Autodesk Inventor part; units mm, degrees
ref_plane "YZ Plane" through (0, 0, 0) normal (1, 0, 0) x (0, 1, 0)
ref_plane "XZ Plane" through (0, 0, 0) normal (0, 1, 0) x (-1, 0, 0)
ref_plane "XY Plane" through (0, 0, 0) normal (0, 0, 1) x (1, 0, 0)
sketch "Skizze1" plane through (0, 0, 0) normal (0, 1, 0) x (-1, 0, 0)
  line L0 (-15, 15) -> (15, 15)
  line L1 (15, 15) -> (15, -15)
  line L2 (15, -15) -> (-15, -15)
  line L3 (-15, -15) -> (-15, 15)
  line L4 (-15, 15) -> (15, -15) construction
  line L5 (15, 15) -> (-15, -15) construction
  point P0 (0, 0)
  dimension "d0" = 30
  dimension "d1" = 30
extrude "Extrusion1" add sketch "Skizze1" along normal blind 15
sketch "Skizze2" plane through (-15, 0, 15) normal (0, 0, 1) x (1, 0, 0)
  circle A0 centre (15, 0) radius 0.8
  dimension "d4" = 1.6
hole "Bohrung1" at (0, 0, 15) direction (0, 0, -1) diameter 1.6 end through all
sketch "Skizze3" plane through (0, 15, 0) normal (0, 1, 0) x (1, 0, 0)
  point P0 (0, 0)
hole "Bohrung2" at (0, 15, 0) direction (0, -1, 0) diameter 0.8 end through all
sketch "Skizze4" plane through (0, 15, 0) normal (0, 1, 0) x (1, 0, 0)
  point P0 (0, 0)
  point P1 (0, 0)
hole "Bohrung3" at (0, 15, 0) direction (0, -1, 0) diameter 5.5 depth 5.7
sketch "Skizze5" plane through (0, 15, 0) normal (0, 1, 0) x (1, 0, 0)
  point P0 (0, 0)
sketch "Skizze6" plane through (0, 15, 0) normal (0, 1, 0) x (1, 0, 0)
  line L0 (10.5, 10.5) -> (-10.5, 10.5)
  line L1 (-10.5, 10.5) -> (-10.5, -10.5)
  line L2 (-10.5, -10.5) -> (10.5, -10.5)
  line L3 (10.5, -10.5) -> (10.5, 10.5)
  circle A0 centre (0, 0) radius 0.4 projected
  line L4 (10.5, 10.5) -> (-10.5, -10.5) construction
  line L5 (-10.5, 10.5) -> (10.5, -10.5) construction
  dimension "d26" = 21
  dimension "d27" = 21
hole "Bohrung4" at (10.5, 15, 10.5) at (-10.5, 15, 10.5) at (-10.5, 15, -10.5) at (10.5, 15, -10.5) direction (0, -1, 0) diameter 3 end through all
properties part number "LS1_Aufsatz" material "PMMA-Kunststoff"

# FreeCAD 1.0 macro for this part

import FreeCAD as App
import Part
import Sketcher

V = App.Vector
Q = App.Units.Quantity


def add_polygon(sketch, points):
    """Adds a closed chain of lines whose ends are joined by coincident constraints."""
    first, n = sketch.GeometryCount, len(points)
    for a, b in zip(points, points[1:] + points[:1]):
        sketch.addGeometry(Part.LineSegment(App.Vector(*a, 0), App.Vector(*b, 0)), False)
    for i in range(n):
        sketch.addConstraint(Sketcher.Constraint("Coincident", first + i, 2, first + (i + 1) % n, 1))

doc = App.newDocument("Part")
body = doc.addObject("PartDesign::Body", "Body")

sketch1 = body.newObject("Sketcher::SketchObject", "Sketch")
sketch1.AttachmentSupport = (doc.getObject("XZ_Plane"), [""])
sketch1.MapMode = "FlatFace"
add_polygon(sketch1, [(-15, 15), (15, 15), (15, -15), (-15, -15)])
sketch1.addConstraint([
    Sketcher.Constraint("Horizontal", 0),
    Sketcher.Constraint("Vertical", 1),
    Sketcher.Constraint("Horizontal", 2),
    Sketcher.Constraint("Vertical", 3),
    Sketcher.Constraint("Symmetric", 0, 2, 2, 2, -1, 1),
    Sketcher.Constraint("Equal", 2, 1),
    Sketcher.Constraint("DistanceX", 0, 1, 0, 2, Q("30 mm")),
])
pad1 = body.newObject("PartDesign::Pad", "Pad")
pad1.Profile = sketch1
pad1.Length = 15
pad1.Reversed = True

sketch2 = body.newObject("Sketcher::SketchObject", "Sketch001")
sketch2.AttachmentSupport = (doc.getObject("XY_Plane"), [""])
sketch2.MapMode = "FlatFace"
sketch2.AttachmentOffset = App.Placement(V(0, 0, 15), App.Rotation())
sketch2.addGeometry(Part.Circle(V(0, 0, 0), V(0, 0, 1), 0.8), False)
sketch2.addConstraint([
    Sketcher.Constraint("Coincident", 0, 3, -1, 1),
    Sketcher.Constraint("Diameter", 0, Q("1.6 mm")),
])
doc.recompute()
hole = body.newObject("PartDesign::Hole", "Hole")
hole.Profile = sketch2
hole.ThreadType = "None"
hole.Diameter = 1.6
hole.DepthType = "ThroughAll"

sketch3 = body.newObject("Sketcher::SketchObject", "Sketch002")
sketch3.AttachmentSupport = (doc.getObject("XZ_Plane"), [""])
sketch3.MapMode = "FlatFace"
sketch3.AttachmentOffset = App.Placement(V(0, 0, -15), App.Rotation())
sketch3.addGeometry(Part.Circle(V(0, 0, 0), V(0, 0, 1), 0.4), False)
sketch3.addConstraint([
    Sketcher.Constraint("Coincident", 0, 3, -1, 1),
    Sketcher.Constraint("Diameter", 0, Q("0.8 mm")),
])
doc.recompute()
hole2 = body.newObject("PartDesign::Hole", "Hole001")
hole2.Profile = sketch3
hole2.ThreadType = "None"
hole2.Diameter = 0.8
hole2.DepthType = "ThroughAll"
hole2.Reversed = True

sketch4 = body.newObject("Sketcher::SketchObject", "Sketch003")
sketch4.AttachmentSupport = (doc.getObject("XZ_Plane"), [""])
sketch4.MapMode = "FlatFace"
sketch4.AttachmentOffset = App.Placement(V(0, 0, -15), App.Rotation())
sketch4.addGeometry(Part.Circle(V(0, 0, 0), V(0, 0, 1), 2.8), False)
sketch4.addConstraint([
    Sketcher.Constraint("Coincident", 0, 3, -1, 1),
    Sketcher.Constraint("Diameter", 0, Q("5.5 mm")),
])
doc.recompute()
hole3 = body.newObject("PartDesign::Hole", "Hole002")
hole3.Profile = sketch4
hole3.ThreadType = "None"
hole3.Diameter = 5.5
hole3.DepthType = "Dimension"
hole3.Depth = 5.7
hole3.DrillPoint = "Flat"
hole3.Reversed = True

sketch5 = body.newObject("Sketcher::SketchObject", "Sketch004")
sketch5.AttachmentSupport = (doc.getObject("XZ_Plane"), [""])
sketch5.MapMode = "FlatFace"
sketch5.AttachmentOffset = App.Placement(V(0, 0, -15), App.Rotation())
sketch5.addGeometry([
    Part.Circle(V(10.5, 10.5, 0), V(0, 0, 1), 1.5),
    Part.Circle(V(-10.5, 10.5, 0), V(0, 0, 1), 1.5),
    Part.Circle(V(-10.5, -10.5, 0), V(0, 0, 1), 1.5),
    Part.Circle(V(10.5, -10.5, 0), V(0, 0, 1), 1.5),
], False)
sketch5.addConstraint([
    Sketcher.Constraint("Equal", 0, 1),
    Sketcher.Constraint("Equal", 1, 2),
    Sketcher.Constraint("Equal", 2, 3),
    Sketcher.Constraint("Symmetric", 0, 3, 2, 3, -1, 1),
    Sketcher.Constraint("Symmetric", 1, 3, 3, 3, -1, 1),
    Sketcher.Constraint("Symmetric", 0, 3, 1, 3, -2),
    Sketcher.Constraint("Diameter", 0, Q("3 mm")),
    Sketcher.Constraint("DistanceX", 1, 3, 0, 3, Q("21 mm")),
    Sketcher.Constraint("DistanceY", 2, 3, 1, 3, Q("21 mm")),
])
doc.recompute()
hole4 = body.newObject("PartDesign::Hole", "Hole003")
hole4.Profile = sketch5
hole4.ThreadType = "None"
hole4.Diameter = 3
hole4.DepthType = "ThroughAll"
hole4.Reversed = True

doc.recompute()
